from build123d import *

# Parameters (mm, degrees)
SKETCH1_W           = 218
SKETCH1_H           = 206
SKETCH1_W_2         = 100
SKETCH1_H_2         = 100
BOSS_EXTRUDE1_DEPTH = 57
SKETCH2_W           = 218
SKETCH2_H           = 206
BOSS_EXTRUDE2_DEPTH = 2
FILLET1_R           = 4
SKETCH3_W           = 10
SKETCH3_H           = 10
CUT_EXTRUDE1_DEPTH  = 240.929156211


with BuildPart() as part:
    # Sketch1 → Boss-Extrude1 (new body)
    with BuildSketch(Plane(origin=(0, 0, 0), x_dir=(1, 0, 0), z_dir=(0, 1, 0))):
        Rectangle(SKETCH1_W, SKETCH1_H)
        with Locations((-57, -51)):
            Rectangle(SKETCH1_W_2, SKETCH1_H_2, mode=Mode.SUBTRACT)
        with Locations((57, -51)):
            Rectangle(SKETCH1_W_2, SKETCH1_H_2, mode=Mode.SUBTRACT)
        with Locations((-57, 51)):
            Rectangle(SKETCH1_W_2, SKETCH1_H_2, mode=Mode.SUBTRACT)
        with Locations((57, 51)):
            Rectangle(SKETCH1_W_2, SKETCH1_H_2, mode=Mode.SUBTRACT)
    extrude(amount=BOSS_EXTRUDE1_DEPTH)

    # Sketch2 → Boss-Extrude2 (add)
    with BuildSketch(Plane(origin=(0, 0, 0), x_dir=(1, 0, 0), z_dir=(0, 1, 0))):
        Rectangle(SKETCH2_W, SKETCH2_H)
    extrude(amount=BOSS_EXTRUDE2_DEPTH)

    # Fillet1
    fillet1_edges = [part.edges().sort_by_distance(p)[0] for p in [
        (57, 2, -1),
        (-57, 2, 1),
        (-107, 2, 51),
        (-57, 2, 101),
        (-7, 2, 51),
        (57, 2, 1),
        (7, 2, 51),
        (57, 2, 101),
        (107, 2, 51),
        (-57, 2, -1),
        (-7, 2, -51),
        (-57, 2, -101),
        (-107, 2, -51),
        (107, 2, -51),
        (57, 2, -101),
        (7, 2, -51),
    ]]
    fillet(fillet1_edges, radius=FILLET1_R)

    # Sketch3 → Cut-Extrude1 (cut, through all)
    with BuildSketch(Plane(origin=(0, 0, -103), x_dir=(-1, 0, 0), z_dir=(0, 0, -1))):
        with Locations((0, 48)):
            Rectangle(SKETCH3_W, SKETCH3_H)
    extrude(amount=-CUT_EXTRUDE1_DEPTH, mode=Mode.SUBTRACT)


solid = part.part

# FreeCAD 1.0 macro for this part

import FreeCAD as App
import Part
import Sketcher
from FreeCAD import Vector


def edges_at(feature, points):
    """Names of the edges that pass closest to the given points."""
    edges = feature.Shape.Edges
    near = lambda p: min(range(len(edges)), key=lambda i: edges[i].distToShape(Part.Vertex(*p))[0])
    return sorted({f"Edge{near(p) + 1}" for p in points})


def add_polygon(sketch, points):
    """Adds a closed chain of lines whose ends are joined by coincident constraints."""
    first, n = sketch.GeometryCount, len(points)
    for a, b in zip(points, points[1:] + points[:1]):
        sketch.addGeometry(Part.LineSegment(App.Vector(*a, 0), App.Vector(*b, 0)), False)
    for i in range(n):
        sketch.addConstraint(Sketcher.Constraint("Coincident", first + i, 2, first + (i + 1) % n, 1))

doc = App.newDocument("Part")
body = doc.addObject("PartDesign::Body", "Body")

sketch1 = body.newObject("Sketcher::SketchObject", "Sketch")
sketch1.AttachmentSupport = (doc.getObject("XZ_Plane"), [""])
sketch1.MapMode = "FlatFace"
add_polygon(sketch1, [(-109, -103), (-109, 103), (109, 103), (109, -103)])
add_polygon(sketch1, [(-7, 101), (-107, 101), (-107, 1), (-7, 1)])
add_polygon(sketch1, [(107, 101), (7, 101), (7, 1), (107, 1)])
add_polygon(sketch1, [(-7, -1), (-107, -1), (-107, -101), (-7, -101)])
add_polygon(sketch1, [(107, -1), (7, -1), (7, -101), (107, -101)])
sketch1.addConstraint([
    Sketcher.Constraint("Vertical", 0),
    Sketcher.Constraint("Horizontal", 1),
    Sketcher.Constraint("Vertical", 2),
    Sketcher.Constraint("Horizontal", 3),
    Sketcher.Constraint("Horizontal", 4),
    Sketcher.Constraint("Vertical", 5),
    Sketcher.Constraint("Horizontal", 6),
    Sketcher.Constraint("Vertical", 7),
    Sketcher.Constraint("Horizontal", 8),
    Sketcher.Constraint("Vertical", 9),
    Sketcher.Constraint("Horizontal", 10),
    Sketcher.Constraint("Vertical", 11),
    Sketcher.Constraint("Horizontal", 12),
    Sketcher.Constraint("Vertical", 13),
    Sketcher.Constraint("Horizontal", 14),
    Sketcher.Constraint("Vertical", 15),
    Sketcher.Constraint("Horizontal", 16),
    Sketcher.Constraint("Vertical", 17),
    Sketcher.Constraint("Horizontal", 18),
    Sketcher.Constraint("Vertical", 19),
    Sketcher.Constraint("Symmetric", 0, 2, 2, 2, -1, 1),
    Sketcher.Constraint("Symmetric", 10, 2, 12, 2, -1, 1),
    Sketcher.Constraint("Symmetric", 8, 2, 14, 2, -1, 1),
    Sketcher.Constraint("Symmetric", 6, 2, 16, 2, -1, 1),
    Sketcher.Constraint("Symmetric", 4, 2, 18, 2, -1, 1),
    Sketcher.Constraint("Symmetric", 7, 2, 8, 2, -2),
    Sketcher.Constraint("Symmetric", 5, 2, 10, 2, -2),
    Sketcher.Constraint("Equal", 18, 5),
    Sketcher.Constraint("DistanceX", 1, 1, 1, 2, 218.0),
    Sketcher.Constraint("DistanceX", 4, 2, 4, 1, 100.0),
    Sketcher.Constraint("DistanceY", 0, 1, 0, 2, 206.0),
    Sketcher.Constraint("DistanceX", 4, 2, -1, 1, 107.0),
    Sketcher.Constraint("DistanceY", -1, 1, 4, 2, 101.0),
])
pad1 = body.newObject("PartDesign::Pad", "Pad")
pad1.Profile = sketch1
pad1.Length = 57
pad1.Reversed = True

sketch2 = body.newObject("Sketcher::SketchObject", "Sketch001")
sketch2.AttachmentSupport = (doc.getObject("XZ_Plane"), [""])
sketch2.MapMode = "FlatFace"
add_polygon(sketch2, [(-109, -103), (-109, 103), (109, 103), (109, -103)])
sketch2.addConstraint([
    Sketcher.Constraint("Vertical", 0),
    Sketcher.Constraint("Horizontal", 1),
    Sketcher.Constraint("Vertical", 2),
    Sketcher.Constraint("Horizontal", 3),
    Sketcher.Constraint("Symmetric", 0, 2, 2, 2, -1, 1),
    Sketcher.Constraint("DistanceX", 1, 1, 1, 2, 218.0),
    Sketcher.Constraint("DistanceY", 0, 1, 0, 2, 206.0),
])
pad2 = body.newObject("PartDesign::Pad", "Pad001")
pad2.Profile = sketch2
pad2.Length = 2
pad2.Reversed = True
doc.recompute()

fillet = body.newObject("PartDesign::Fillet", "Fillet")
fillet.Base = (pad2, edges_at(pad2, [
    (57, 2, -1),
    (-57, 2, 1),
    (-107, 2, 51),
    (-57, 2, 101),
    (-7, 2, 51),
    (57, 2, 1),
    (7, 2, 51),
    (57, 2, 101),
    (107, 2, 51),
    (-57, 2, -1),
    (-7, 2, -51),
    (-57, 2, -101),
    (-107, 2, -51),
    (107, 2, -51),
    (57, 2, -101),
    (7, 2, -51),
]))
fillet.Radius = 4

sketch3 = body.newObject("Sketcher::SketchObject", "Sketch002")
sketch3.AttachmentSupport = (doc.getObject("XY_Plane"), [""])
sketch3.MapMode = "FlatFace"
sketch3.AttachmentOffset = App.Placement(Vector(0, 0, -103), App.Rotation())
add_polygon(sketch3, [(5, 53), (5, 43), (-5, 43), (-5, 53)])
sketch3.addConstraint([
    Sketcher.Constraint("Vertical", 0),
    Sketcher.Constraint("Horizontal", 1),
    Sketcher.Constraint("Vertical", 2),
    Sketcher.Constraint("Horizontal", 3),
    Sketcher.Constraint("Equal", 3, 0),
    Sketcher.Constraint("DistanceX", 1, 2, 1, 1, 10.0),
    Sketcher.Constraint("DistanceX", -1, 1, 0, 2, 5.0),
    Sketcher.Constraint("DistanceY", -1, 1, 0, 2, 43.0),
])
pocket1 = body.newObject("PartDesign::Pocket", "Pocket")
pocket1.Profile = sketch3
pocket1.Type = "ThroughAll"
pocket1.Reversed = True

doc.recompute()
